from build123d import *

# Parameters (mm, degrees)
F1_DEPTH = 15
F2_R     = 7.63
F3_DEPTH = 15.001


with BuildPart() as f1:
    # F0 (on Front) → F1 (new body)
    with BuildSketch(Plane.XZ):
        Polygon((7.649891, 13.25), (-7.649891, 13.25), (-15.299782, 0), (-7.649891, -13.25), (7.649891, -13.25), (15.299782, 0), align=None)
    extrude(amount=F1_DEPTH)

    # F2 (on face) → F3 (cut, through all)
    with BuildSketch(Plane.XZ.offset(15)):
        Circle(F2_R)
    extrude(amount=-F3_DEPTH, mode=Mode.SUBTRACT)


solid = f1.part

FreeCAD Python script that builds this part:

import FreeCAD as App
import Part
import Sketcher
Q = App.Units.Quantity


def add_polygon(sketch, points):
    """Adds a closed chain of lines whose ends are joined by coincident constraints."""
    first, n = sketch.GeometryCount, len(points)
    for a, b in zip(points, points[1:] + points[:1]):
        sketch.addGeometry(Part.LineSegment(App.Vector(*a, 0), App.Vector(*b, 0)), False)
    for i in range(n):
        sketch.addConstraint(Sketcher.Constraint("Coincident", first + i, 2, first + (i + 1) % n, 1))

doc = App.newDocument("Part")
body = doc.addObject("PartDesign::Body", "Body")

# Sketch on XZ plane
sketch1 = body.newObject("Sketcher::SketchObject", "Sketch")
sketch1.AttachmentSupport = (doc.getObject("XZ_Plane"), [""])
sketch1.MapMode = "FlatFace"
add_polygon(sketch1, [(8, 13), (-8, 13), (-15, 0), (-8, -13), (8, -13), (15, 0)])  # lines 0-5
sketch1.addConstraint(Sketcher.Constraint("Horizontal", 0))
sketch1.addConstraint(Sketcher.Constraint("Horizontal", 3))
sketch1.addConstraint(Sketcher.Constraint("Symmetric", 0, 2, 3, 2, -1, 1))
sketch1.addConstraint(Sketcher.Constraint("Symmetric", 1, 2, 4, 2, -1, 1))
sketch1.addConstraint(Sketcher.Constraint("PointOnObject", 1, 2, -1))
sketch1.addConstraint(Sketcher.Constraint("Parallel", 2, 5))
sketch1.addConstraint(Sketcher.Constraint("Vertical", 0, 2, 2, 2))
sketch1.addConstraint(Sketcher.Constraint("Angle", 1, Q("-120 deg")))
sketch1.addConstraint(Sketcher.Constraint("DistanceY", 2, 2, 0, 2, Q("26.5 mm")))
sketch1.addConstraint(Sketcher.Constraint("DistanceX", 0, 2, 0, 1, Q("15.299782 mm")))
pad1 = body.newObject("PartDesign::Pad", "Pad")
pad1.Profile = sketch1
pad1.Length = 15

# Sketch on XZ plane
sketch2 = body.newObject("Sketcher::SketchObject", "Sketch001")
sketch2.AttachmentSupport = (doc.getObject("XZ_Plane"), [""])
sketch2.MapMode = "FlatFace"
sketch2.AttachmentOffset = App.Placement(App.Vector(0, 0, 15), App.Rotation())
sketch2.addGeometry(Part.Circle(App.Vector(0, 0, 0), App.Vector(0, 0, 1), 8), False)
sketch2.addConstraint(Sketcher.Constraint("Coincident", 0, 3, -1, 1))
sketch2.addConstraint(Sketcher.Constraint("Diameter", 0, Q("15.26 mm")))
pocket1 = body.newObject("PartDesign::Pocket", "Pocket")
pocket1.Profile = sketch2
pocket1.Type = "ThroughAll"

doc.recompute()
